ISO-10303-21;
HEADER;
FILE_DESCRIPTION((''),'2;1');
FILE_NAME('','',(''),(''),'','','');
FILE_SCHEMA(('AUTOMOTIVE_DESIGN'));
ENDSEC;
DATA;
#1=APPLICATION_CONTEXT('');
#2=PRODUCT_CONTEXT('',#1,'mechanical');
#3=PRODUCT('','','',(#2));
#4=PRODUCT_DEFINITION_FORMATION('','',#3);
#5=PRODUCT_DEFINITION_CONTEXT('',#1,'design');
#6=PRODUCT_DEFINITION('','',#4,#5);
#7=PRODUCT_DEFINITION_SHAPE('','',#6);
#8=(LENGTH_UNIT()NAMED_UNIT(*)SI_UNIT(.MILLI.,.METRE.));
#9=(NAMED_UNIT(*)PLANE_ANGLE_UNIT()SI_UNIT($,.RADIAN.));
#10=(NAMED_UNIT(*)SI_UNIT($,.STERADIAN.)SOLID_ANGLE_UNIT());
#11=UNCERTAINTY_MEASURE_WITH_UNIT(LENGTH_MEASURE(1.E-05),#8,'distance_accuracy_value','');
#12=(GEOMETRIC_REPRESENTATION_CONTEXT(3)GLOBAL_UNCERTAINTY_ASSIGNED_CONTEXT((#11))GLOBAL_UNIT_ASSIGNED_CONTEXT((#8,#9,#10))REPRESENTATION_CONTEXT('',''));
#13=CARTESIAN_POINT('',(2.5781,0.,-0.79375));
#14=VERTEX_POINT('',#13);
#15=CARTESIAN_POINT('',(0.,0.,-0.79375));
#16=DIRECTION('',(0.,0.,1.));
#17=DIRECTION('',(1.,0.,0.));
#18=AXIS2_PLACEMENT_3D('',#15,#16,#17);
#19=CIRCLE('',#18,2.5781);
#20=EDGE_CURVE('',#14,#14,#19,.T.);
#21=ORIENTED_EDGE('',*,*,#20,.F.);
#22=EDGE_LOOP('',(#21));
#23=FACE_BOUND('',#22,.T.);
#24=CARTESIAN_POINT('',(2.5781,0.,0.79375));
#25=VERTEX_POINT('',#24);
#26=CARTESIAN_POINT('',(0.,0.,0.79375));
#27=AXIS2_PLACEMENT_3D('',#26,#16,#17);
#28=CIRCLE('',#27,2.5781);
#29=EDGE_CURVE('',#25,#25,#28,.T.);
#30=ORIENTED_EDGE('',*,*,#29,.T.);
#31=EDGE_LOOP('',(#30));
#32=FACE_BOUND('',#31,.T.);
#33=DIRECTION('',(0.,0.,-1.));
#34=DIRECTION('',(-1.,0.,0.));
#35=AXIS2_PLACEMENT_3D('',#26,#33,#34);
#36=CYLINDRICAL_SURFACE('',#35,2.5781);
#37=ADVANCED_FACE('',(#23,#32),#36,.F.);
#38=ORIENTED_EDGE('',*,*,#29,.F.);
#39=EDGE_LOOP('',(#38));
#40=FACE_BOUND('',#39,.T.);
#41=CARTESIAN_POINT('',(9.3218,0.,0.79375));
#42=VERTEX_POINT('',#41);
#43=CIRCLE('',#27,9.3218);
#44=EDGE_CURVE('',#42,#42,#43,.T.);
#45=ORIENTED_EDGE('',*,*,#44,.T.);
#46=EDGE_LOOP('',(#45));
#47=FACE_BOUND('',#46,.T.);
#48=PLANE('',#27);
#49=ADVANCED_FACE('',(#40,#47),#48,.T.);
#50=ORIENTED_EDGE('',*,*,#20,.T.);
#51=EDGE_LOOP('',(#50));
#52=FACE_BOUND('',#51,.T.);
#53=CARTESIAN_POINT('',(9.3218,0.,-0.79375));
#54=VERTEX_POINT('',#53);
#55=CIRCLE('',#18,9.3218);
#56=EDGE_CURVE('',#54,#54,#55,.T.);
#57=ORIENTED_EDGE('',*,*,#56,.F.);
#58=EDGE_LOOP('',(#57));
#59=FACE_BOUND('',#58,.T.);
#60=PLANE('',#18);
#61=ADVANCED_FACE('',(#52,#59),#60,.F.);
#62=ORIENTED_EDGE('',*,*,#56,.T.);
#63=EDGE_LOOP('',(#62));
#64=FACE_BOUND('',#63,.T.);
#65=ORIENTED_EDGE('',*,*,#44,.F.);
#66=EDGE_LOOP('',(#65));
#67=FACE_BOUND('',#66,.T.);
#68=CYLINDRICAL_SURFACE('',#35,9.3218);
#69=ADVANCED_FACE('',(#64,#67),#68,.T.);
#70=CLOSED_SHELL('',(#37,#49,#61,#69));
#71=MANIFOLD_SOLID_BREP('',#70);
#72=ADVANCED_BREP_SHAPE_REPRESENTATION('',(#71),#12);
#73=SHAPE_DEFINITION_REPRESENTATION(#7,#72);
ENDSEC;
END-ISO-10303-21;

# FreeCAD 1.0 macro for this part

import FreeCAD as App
import Part
import Sketcher

V = App.Vector
Q = App.Units.Quantity

doc = App.newDocument("Part")
body = doc.addObject("PartDesign::Body", "Body")

sketch1 = body.newObject("Sketcher::SketchObject", "Sketch")
sketch1.AttachmentSupport = (doc.getObject("XY_Plane"), [""])
sketch1.MapMode = "FlatFace"
sketch1.addGeometry([
    Part.Circle(V(0, 0, 0), V(0, 0, 1), 9.3218),
    Part.Circle(V(0, 0, 0), V(0, 0, 1), 2.5781),
], False)
sketch1.addConstraint([
    Sketcher.Constraint("Coincident", 0, 3, -1, 1),
    Sketcher.Constraint("Coincident", 1, 3, -1, 1),
    Sketcher.Constraint("Diameter", 0, Q("0.734 in")),
    Sketcher.Constraint("Diameter", 1, Q("0.203 in")),
])
pad1 = body.newObject("PartDesign::Pad", "Pad")
pad1.Profile = sketch1
pad1.Length = Q("0.0625 in")
pad1.Midplane = True

doc.recompute()
